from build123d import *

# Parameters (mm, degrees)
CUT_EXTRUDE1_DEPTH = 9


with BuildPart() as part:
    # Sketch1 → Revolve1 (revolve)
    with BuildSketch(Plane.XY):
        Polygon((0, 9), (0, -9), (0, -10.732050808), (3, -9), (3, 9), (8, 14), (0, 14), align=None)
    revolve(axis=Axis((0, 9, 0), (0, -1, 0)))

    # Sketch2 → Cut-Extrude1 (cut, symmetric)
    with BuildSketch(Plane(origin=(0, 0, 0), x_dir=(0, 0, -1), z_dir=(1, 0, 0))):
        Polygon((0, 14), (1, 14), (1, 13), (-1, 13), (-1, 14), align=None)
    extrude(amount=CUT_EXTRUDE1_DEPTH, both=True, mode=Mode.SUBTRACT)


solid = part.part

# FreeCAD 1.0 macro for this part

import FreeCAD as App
import Part
import Sketcher

V = App.Vector
Q = App.Units.Quantity

doc = App.newDocument("Part")
body = doc.addObject("PartDesign::Body", "Body")

# Sketch on XY plane
sketch1 = body.newObject("Sketcher::SketchObject", "Sketch")
sketch1.AttachmentSupport = (doc.getObject("XY_Plane"), [""])
sketch1.MapMode = "FlatFace"
sketch1.addGeometry([
    Part.LineSegment(V(0, -10.732051, 0), V(3, -9, 0)),  # 0
    Part.LineSegment(V(3, -9, 0), V(3, 9, 0)),  # 1
    Part.LineSegment(V(3, 9, 0), V(8, 14, 0)),  # 2
    Part.LineSegment(V(8, 14, 0), V(0, 14, 0)),  # 3
    Part.LineSegment(V(0, 14, 0), V(0, -10.732051, 0)),  # 4
], False)
sketch1.addConstraint([
    Sketcher.Constraint("Coincident", 0, 2, 1, 1),
    Sketcher.Constraint("Coincident", 1, 2, 2, 1),
    Sketcher.Constraint("Coincident", 2, 2, 3, 1),
    Sketcher.Constraint("Coincident", 3, 2, 4, 1),
    Sketcher.Constraint("Coincident", 4, 2, 0, 1),
    Sketcher.Constraint("Vertical", 1),
    Sketcher.Constraint("Horizontal", 3),
    Sketcher.Constraint("Vertical", 4),
    Sketcher.Constraint("PointOnObject", 3, 2, -2),
    Sketcher.Constraint("DistanceX", 3, 2, 3, 1, 8.0),
    Sketcher.Constraint("DistanceY", 1, 1, 1, 2, 18.0),
    Sketcher.Constraint("Angle", 0, Q("30 deg")),
    Sketcher.Constraint("Angle", 2, Q("45 deg")),
    Sketcher.Constraint("DistanceX", -1, 1, 0, 2, 3.0),
    Sketcher.Constraint("DistanceY", 0, 2, -1, 1, 9.0),
])
revolution = body.newObject("PartDesign::Revolution", "Revolution")
revolution.Profile = sketch1
revolution.ReferenceAxis = (sketch1, ["V_Axis"])
revolution.Angle = 360

# Sketch on YZ plane
sketch2 = body.newObject("Sketcher::SketchObject", "Sketch001")
sketch2.AttachmentSupport = (doc.getObject("YZ_Plane"), [""])
sketch2.MapMode = "FlatFace"
sketch2.addGeometry([
    Part.LineSegment(V(14, -1, 0), V(14, 1, 0)),
    Part.LineSegment(V(14, 1, 0), V(13, 1, 0)),
    Part.LineSegment(V(13, 1, 0), V(13, -1, 0)),
    Part.LineSegment(V(13, -1, 0), V(14, -1, 0)),
], False)
sketch2.addConstraint([
    Sketcher.Constraint("Coincident", 0, 2, 1, 1),
    Sketcher.Constraint("Coincident", 1, 2, 2, 1),
    Sketcher.Constraint("Coincident", 2, 2, 3, 1),
    Sketcher.Constraint("Coincident", 3, 2, 0, 1),
    Sketcher.Constraint("Vertical", 0),
    Sketcher.Constraint("Horizontal", 1),
    Sketcher.Constraint("Vertical", 2),
    Sketcher.Constraint("Horizontal", 3),
    Sketcher.Constraint("DistanceX", 1, 2, 1, 1, 1.0),
    Sketcher.Constraint("DistanceY", 0, 1, 0, 2, 2.0),
    Sketcher.Constraint("DistanceX", -1, 1, 0, 2, 14.0),
    Sketcher.Constraint("DistanceY", -1, 1, 0, 2, 1.0),
])
pocket1 = body.newObject("PartDesign::Pocket", "Pocket")
pocket1.Profile = sketch2
pocket1.Length = 18
pocket1.Midplane = True

doc.recompute()
